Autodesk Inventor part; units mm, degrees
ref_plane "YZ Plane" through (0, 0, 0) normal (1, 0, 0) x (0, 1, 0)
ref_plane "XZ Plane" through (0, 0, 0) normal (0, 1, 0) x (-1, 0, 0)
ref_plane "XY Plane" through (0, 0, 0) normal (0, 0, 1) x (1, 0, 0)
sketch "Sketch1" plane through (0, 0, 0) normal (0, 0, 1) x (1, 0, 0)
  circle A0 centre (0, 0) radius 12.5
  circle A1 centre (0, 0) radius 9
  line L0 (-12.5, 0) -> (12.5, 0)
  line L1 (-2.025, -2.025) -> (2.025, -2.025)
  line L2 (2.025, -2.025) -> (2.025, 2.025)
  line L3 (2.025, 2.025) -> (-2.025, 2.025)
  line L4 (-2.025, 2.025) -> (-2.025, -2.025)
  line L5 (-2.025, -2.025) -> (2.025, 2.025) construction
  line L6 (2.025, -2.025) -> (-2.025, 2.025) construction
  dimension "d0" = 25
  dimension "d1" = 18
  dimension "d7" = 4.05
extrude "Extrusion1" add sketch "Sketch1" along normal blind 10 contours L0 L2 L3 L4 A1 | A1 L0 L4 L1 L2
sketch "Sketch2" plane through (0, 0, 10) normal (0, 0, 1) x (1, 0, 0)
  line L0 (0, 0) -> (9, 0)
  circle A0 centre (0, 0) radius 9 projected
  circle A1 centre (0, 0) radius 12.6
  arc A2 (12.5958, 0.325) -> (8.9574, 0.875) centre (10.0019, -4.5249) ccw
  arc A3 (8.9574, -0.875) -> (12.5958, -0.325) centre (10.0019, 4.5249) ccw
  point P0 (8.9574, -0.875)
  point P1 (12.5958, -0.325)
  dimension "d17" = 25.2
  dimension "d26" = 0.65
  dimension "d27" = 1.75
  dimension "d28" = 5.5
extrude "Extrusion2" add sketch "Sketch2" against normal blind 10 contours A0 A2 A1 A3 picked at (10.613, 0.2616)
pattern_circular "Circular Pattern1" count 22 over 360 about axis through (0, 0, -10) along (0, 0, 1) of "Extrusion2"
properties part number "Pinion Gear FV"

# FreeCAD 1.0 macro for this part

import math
import FreeCAD as App
import Part
import Sketcher

V = App.Vector
Q = App.Units.Quantity

doc = App.newDocument("Part")
body = doc.addObject("PartDesign::Body", "Body")

# Sketch on XY plane
sketch1 = body.newObject("Sketcher::SketchObject", "Sketch")
sketch1.AttachmentSupport = (doc.getObject("XY_Plane"), [""])
sketch1.MapMode = "FlatFace"
sketch1.addGeometry(Part.Circle(V(0, 0, 0), V(0, 0, 1), 9), False)
sketch1.addGeometry(Part.LineSegment(V(2, 2, 0), V(2, -2, 0)), False)
sketch1.addGeometry(Part.LineSegment(V(2, -2, 0), V(-2, -2, 0)), False)
sketch1.addGeometry(Part.LineSegment(V(-2, -2, 0), V(-2, 2, 0)), False)
sketch1.addGeometry(Part.LineSegment(V(-2, 2, 0), V(2, 2, 0)), False)
sketch1.addConstraint(Sketcher.Constraint("Coincident", 1, 2, 2, 1))
sketch1.addConstraint(Sketcher.Constraint("Coincident", 2, 2, 3, 1))
sketch1.addConstraint(Sketcher.Constraint("Coincident", 3, 2, 4, 1))
sketch1.addConstraint(Sketcher.Constraint("Coincident", 4, 2, 1, 1))
sketch1.addConstraint(Sketcher.Constraint("Vertical", 1))
sketch1.addConstraint(Sketcher.Constraint("Horizontal", 2))
sketch1.addConstraint(Sketcher.Constraint("Vertical", 3))
sketch1.addConstraint(Sketcher.Constraint("Horizontal", 4))
sketch1.addConstraint(Sketcher.Constraint("Coincident", 0, 3, -1, 1))
sketch1.addConstraint(Sketcher.Constraint("Symmetric", 1, 2, 3, 2, -1, 1))
sketch1.addConstraint(Sketcher.Constraint("Equal", 4, 1))
sketch1.addConstraint(Sketcher.Constraint("Diameter", 0, Q("18 mm")))
sketch1.addConstraint(Sketcher.Constraint("DistanceX", 2, 2, 2, 1, Q("4.05 mm")))
pad1 = body.newObject("PartDesign::Pad", "Pad")
pad1.Profile = sketch1
pad1.Length = 10

# Sketch on XY plane
sketch2 = body.newObject("Sketcher::SketchObject", "Sketch001")
sketch2.AttachmentSupport = (doc.getObject("XY_Plane"), [""])
sketch2.MapMode = "FlatFace"
sketch2.AttachmentOffset = App.Placement(V(0, 0, 10), App.Rotation())
sketch2.addGeometry(Part.ArcOfCircle(Part.Circle(V(0, 0, 0), V(0, 0, 1), 9), math.radians(-5.58), math.radians(5.58)), False)
sketch2.addGeometry(Part.ArcOfCircle(Part.Circle(V(10, 4.5, 0), V(0, 0, 1), 5.5), math.radians(-101), math.radians(-62)), False)
sketch2.addGeometry(Part.ArcOfCircle(Part.Circle(V(0, 0, 0), V(0, 0, 1), 12.6), math.radians(-1.48), math.radians(1.48)), False)
sketch2.addGeometry(Part.ArcOfCircle(Part.Circle(V(10, -4.5, 0), V(0, 0, 1), 5.5), math.radians(62), math.radians(101)), False)
sketch2.addConstraint(Sketcher.Constraint("Coincident", 0, 1, 1, 1))
sketch2.addConstraint(Sketcher.Constraint("Coincident", 1, 2, 2, 1))
sketch2.addConstraint(Sketcher.Constraint("Coincident", 2, 2, 3, 1))
sketch2.addConstraint(Sketcher.Constraint("Coincident", 3, 2, 0, 2))
sketch2.addConstraint(Sketcher.Constraint("Coincident", 0, 3, -1, 1))
sketch2.addConstraint(Sketcher.Constraint("Coincident", 2, 3, -1, 1))
sketch2.addConstraint(Sketcher.Constraint("Equal", 1, 3))
sketch2.addConstraint(Sketcher.Constraint("Symmetric", 1, 3, 3, 3, -1))
sketch2.addConstraint(Sketcher.Constraint("Radius", 1, Q("5.5 mm")))
sketch2.addConstraint(Sketcher.Constraint("Radius", 2, Q("12.6 mm")))
sketch2.addConstraint(Sketcher.Constraint("Radius", 0, Q("9 mm")))
sketch2.addConstraint(Sketcher.Constraint("DistanceY", 1, 2, 2, 2, Q("0.65 mm")))
sketch2.addConstraint(Sketcher.Constraint("DistanceY", 0, 1, 3, 2, Q("1.75 mm")))
pad2 = body.newObject("PartDesign::Pad", "Pad001")
pad2.Profile = sketch2
pad2.Length = 10
pad2.Reversed = True
doc.recompute()

polarpattern = body.newObject("PartDesign::PolarPattern", "PolarPattern")
polarpattern.Originals = [pad2]
polarpattern.Axis = (doc.getObject("Z_Axis"), [""])
polarpattern.Angle = 360
polarpattern.Occurrences = 22
body.Tip = polarpattern

doc.recompute()
